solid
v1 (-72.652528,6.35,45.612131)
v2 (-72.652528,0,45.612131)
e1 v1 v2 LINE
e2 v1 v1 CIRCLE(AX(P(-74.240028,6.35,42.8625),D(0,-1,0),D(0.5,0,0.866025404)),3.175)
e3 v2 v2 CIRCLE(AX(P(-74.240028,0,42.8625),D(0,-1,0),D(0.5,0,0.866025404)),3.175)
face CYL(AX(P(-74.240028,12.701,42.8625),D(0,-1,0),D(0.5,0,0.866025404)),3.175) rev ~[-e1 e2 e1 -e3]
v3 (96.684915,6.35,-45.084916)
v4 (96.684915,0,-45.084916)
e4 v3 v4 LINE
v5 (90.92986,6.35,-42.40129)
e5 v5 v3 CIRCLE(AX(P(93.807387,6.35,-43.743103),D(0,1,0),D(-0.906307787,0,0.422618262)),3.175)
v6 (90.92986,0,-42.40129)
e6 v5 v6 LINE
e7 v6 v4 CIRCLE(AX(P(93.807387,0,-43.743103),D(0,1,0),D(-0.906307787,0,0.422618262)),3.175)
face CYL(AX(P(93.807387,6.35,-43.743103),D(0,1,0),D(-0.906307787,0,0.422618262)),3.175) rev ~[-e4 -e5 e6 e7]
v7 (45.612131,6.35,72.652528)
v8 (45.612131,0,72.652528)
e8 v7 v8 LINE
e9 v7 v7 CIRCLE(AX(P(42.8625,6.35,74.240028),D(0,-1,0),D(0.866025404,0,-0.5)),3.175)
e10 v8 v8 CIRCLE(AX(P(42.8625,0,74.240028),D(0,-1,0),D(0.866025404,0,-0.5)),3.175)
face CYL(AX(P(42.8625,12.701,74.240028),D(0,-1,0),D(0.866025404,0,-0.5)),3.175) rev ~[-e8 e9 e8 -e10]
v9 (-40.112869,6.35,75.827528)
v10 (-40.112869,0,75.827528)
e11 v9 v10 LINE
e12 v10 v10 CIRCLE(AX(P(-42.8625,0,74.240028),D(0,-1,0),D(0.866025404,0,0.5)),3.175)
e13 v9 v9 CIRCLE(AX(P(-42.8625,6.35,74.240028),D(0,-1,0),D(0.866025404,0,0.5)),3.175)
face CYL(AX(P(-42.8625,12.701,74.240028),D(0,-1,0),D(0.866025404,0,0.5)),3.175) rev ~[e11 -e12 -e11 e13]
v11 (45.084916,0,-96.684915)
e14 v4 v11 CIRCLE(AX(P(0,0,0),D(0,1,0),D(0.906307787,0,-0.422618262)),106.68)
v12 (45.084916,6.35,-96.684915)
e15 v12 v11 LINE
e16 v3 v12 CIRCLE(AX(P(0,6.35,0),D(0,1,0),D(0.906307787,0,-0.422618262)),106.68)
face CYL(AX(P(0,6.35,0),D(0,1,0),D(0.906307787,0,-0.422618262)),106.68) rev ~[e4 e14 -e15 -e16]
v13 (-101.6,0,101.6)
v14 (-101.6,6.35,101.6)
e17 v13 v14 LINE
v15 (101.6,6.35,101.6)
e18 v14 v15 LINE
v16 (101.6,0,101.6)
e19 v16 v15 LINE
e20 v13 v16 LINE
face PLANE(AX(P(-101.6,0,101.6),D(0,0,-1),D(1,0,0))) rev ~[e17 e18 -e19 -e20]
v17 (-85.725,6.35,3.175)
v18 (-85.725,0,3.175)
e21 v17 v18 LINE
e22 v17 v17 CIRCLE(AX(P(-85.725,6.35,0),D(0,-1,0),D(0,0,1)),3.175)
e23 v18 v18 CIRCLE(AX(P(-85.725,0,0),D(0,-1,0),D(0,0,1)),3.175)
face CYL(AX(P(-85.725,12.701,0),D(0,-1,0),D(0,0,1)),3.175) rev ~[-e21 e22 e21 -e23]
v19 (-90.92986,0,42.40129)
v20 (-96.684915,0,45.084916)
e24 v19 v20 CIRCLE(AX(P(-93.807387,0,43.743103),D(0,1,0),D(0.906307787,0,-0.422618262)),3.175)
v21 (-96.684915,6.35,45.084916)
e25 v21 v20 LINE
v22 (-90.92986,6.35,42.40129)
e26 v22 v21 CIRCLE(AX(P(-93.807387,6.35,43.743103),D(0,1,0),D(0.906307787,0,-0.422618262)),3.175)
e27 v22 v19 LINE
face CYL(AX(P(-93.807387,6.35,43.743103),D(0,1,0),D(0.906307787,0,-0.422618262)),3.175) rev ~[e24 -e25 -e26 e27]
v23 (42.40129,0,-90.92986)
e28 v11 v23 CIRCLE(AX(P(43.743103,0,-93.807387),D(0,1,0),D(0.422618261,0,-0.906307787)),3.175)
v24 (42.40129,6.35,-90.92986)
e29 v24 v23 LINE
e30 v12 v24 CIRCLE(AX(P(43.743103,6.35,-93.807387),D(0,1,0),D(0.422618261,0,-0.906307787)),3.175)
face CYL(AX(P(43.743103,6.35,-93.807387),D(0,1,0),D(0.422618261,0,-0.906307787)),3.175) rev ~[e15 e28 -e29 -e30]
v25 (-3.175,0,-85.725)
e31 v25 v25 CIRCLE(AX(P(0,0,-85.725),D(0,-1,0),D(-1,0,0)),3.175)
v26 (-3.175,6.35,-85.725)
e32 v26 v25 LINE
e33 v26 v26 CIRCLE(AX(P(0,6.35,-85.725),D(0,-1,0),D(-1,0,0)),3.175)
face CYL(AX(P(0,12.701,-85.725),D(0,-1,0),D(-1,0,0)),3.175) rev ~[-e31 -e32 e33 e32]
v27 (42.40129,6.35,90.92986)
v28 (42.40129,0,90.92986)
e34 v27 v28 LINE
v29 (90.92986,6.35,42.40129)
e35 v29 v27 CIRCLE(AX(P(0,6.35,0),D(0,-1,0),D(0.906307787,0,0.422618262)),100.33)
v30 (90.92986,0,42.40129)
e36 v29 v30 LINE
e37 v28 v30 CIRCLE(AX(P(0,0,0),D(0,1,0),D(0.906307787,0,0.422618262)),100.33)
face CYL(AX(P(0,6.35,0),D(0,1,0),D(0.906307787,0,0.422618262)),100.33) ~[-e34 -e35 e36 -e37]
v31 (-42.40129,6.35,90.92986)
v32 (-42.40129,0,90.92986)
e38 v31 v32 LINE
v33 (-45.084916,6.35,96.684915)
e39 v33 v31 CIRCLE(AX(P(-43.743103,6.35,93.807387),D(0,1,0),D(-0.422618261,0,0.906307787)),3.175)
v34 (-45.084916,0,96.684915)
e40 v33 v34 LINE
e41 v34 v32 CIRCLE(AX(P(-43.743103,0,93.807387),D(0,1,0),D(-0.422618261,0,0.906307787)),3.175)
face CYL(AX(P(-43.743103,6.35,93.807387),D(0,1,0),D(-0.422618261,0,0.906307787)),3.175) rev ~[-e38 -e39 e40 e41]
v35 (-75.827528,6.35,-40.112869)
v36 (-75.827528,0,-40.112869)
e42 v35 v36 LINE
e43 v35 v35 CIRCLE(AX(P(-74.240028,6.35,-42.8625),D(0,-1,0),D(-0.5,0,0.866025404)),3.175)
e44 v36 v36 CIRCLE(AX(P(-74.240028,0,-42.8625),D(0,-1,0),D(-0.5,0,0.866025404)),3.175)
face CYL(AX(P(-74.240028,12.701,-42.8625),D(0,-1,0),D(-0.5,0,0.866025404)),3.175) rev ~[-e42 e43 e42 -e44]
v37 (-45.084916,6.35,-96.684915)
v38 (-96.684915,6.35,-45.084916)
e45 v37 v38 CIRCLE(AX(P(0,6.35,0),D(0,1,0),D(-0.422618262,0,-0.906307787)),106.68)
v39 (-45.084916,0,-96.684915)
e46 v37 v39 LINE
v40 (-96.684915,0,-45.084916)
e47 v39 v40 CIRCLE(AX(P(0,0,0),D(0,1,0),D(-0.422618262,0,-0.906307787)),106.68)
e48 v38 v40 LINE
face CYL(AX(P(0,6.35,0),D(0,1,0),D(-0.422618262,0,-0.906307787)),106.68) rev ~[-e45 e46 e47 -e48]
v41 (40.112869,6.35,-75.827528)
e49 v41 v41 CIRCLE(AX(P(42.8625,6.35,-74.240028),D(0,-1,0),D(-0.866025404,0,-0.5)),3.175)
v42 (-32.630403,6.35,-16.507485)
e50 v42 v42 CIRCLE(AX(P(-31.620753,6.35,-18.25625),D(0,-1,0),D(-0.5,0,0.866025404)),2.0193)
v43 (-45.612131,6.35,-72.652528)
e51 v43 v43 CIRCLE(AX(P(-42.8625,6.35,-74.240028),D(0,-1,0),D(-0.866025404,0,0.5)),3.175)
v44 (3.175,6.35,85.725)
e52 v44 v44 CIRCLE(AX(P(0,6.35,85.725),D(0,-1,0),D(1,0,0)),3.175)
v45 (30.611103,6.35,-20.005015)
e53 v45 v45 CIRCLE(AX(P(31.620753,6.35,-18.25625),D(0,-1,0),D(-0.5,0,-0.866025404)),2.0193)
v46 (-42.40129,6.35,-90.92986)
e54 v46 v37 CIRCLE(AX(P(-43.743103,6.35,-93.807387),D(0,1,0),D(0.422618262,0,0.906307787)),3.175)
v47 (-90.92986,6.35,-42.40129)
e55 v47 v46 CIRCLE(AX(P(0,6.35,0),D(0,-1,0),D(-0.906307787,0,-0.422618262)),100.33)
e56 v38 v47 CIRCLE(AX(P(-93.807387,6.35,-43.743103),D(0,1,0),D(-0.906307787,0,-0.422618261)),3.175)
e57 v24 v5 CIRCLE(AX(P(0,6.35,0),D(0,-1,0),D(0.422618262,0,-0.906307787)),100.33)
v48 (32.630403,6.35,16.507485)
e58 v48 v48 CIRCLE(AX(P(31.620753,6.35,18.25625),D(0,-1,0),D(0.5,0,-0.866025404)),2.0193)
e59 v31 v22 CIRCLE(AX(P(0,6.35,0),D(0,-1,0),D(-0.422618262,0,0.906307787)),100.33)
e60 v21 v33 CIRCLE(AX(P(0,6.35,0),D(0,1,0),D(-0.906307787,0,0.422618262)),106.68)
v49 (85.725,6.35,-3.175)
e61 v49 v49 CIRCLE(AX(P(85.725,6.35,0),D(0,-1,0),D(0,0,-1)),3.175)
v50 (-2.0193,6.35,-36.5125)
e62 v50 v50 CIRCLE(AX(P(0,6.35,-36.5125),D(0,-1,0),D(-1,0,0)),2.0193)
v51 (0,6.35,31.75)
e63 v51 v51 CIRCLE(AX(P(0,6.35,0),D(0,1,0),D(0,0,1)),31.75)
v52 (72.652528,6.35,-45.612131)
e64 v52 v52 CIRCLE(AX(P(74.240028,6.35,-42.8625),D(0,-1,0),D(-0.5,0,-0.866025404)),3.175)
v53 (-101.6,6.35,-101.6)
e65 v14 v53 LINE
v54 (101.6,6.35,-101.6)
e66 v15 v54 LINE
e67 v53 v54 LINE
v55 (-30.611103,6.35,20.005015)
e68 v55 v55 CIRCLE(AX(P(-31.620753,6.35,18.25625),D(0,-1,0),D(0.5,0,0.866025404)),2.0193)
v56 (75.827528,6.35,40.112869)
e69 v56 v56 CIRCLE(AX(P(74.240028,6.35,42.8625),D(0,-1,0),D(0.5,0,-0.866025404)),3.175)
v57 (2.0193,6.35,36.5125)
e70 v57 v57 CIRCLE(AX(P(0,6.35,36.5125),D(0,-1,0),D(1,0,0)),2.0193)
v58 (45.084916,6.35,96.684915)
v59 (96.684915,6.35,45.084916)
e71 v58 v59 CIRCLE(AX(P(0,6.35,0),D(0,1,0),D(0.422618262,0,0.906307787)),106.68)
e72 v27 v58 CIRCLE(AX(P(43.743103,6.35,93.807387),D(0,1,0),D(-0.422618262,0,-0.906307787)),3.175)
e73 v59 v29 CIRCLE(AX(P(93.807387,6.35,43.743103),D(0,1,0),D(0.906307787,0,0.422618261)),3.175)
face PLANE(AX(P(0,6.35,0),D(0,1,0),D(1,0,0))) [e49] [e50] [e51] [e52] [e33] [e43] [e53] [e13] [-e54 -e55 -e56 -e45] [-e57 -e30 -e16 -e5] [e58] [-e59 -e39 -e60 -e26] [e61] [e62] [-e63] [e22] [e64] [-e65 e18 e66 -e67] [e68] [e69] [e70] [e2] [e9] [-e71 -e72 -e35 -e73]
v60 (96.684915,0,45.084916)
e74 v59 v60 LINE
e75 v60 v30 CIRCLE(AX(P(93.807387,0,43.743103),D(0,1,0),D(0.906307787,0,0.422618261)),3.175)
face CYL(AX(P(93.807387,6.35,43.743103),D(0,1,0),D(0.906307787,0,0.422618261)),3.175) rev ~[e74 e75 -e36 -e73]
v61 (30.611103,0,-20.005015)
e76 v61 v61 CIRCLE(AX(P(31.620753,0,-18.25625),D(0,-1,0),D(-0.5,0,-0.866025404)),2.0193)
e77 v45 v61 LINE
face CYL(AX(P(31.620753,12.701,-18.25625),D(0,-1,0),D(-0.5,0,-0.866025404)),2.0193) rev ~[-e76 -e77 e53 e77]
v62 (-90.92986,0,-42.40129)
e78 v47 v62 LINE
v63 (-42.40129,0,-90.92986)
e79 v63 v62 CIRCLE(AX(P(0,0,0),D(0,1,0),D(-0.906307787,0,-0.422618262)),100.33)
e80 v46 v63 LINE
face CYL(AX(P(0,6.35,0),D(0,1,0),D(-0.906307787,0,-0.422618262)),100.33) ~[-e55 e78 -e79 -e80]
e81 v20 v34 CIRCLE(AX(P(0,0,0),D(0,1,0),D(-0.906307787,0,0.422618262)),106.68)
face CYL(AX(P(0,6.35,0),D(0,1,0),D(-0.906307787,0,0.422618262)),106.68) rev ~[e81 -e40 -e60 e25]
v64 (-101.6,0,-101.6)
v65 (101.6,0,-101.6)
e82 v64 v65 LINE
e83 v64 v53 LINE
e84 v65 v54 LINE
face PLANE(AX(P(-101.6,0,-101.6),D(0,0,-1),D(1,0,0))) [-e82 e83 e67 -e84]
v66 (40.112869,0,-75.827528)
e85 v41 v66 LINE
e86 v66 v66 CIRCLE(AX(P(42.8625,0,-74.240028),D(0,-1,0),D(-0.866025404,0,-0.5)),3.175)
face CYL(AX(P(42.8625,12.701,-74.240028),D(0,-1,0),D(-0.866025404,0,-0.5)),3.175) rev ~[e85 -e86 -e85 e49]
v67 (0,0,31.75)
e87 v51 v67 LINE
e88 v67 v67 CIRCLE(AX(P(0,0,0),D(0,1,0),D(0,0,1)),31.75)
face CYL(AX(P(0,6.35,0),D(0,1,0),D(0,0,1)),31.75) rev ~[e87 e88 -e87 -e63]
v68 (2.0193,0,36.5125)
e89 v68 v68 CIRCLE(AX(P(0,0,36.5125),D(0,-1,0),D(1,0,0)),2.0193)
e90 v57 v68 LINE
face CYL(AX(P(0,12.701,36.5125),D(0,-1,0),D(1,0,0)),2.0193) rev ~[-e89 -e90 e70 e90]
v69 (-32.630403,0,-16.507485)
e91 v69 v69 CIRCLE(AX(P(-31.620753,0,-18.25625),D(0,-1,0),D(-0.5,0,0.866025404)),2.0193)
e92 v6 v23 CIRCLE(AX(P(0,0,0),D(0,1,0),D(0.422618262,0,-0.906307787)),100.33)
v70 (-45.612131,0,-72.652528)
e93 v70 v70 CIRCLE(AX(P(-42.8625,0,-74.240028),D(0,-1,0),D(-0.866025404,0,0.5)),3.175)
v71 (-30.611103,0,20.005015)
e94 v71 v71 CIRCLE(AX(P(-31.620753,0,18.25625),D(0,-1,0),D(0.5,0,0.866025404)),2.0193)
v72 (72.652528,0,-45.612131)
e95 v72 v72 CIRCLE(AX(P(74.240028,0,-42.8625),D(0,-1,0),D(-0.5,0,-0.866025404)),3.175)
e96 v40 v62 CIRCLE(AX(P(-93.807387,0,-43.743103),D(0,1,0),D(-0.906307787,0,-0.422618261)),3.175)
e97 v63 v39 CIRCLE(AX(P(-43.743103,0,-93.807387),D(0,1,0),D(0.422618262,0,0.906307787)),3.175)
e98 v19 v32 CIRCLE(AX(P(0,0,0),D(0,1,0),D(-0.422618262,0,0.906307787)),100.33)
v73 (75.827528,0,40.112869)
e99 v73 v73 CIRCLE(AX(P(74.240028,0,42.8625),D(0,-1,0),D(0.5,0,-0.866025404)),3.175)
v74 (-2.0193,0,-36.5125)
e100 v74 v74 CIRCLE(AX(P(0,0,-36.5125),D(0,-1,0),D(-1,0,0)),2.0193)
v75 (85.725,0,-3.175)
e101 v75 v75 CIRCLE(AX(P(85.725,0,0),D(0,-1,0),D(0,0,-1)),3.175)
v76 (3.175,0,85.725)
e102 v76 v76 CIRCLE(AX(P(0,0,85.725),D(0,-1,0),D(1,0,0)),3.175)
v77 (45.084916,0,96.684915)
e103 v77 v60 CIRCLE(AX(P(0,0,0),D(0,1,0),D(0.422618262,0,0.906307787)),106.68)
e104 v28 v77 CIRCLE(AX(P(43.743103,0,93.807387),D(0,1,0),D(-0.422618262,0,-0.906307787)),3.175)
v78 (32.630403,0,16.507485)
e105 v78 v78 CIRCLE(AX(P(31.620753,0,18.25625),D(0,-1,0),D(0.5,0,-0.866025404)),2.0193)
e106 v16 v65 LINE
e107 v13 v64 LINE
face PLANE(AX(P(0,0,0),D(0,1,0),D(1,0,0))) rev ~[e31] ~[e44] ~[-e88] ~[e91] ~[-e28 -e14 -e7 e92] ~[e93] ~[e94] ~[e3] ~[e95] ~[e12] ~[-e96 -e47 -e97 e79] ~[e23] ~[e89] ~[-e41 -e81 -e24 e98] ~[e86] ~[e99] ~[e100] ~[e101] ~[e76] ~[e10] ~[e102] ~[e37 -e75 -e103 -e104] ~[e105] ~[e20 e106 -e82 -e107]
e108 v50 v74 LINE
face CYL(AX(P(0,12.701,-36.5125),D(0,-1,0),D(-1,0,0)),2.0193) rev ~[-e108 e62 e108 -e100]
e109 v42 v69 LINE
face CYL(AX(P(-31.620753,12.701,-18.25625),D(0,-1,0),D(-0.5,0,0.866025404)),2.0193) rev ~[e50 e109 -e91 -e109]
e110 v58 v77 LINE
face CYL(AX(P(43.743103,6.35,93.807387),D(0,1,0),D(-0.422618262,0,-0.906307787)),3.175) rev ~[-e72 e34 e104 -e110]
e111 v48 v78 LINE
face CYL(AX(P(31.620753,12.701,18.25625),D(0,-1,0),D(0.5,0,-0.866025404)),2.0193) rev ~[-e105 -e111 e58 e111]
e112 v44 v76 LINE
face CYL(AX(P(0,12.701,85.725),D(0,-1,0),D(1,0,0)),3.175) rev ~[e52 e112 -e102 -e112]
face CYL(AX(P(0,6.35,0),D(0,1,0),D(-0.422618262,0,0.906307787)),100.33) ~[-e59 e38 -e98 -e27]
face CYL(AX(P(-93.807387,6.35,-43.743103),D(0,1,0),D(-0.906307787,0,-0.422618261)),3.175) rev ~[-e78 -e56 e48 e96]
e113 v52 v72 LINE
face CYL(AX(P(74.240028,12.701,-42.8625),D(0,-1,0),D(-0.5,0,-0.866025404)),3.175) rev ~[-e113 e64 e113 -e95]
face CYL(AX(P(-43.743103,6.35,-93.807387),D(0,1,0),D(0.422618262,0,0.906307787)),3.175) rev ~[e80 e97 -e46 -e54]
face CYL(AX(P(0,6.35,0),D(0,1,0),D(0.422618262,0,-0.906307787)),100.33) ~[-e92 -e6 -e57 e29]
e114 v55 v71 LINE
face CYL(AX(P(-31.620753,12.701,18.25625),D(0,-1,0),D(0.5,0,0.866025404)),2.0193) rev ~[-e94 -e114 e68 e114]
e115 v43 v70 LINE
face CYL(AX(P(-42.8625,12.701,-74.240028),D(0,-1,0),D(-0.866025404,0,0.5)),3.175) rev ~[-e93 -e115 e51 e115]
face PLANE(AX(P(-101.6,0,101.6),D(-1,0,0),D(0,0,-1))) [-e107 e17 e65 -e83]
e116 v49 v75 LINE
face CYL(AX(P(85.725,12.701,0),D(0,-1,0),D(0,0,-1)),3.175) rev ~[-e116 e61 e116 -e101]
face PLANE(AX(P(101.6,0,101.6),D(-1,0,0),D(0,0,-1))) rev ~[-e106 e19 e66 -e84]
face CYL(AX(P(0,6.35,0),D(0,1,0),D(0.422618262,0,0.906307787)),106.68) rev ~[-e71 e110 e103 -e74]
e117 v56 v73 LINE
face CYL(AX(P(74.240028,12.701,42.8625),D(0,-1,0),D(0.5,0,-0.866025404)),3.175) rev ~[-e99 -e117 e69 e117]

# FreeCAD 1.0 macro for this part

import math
import FreeCAD as App
import Part
import Sketcher

V = App.Vector
Q = App.Units.Quantity


def add_polygon(sketch, points):
    """Adds a closed chain of lines whose ends are joined by coincident constraints."""
    first, n = sketch.GeometryCount, len(points)
    for a, b in zip(points, points[1:] + points[:1]):
        sketch.addGeometry(Part.LineSegment(App.Vector(*a, 0), App.Vector(*b, 0)), False)
    for i in range(n):
        sketch.addConstraint(Sketcher.Constraint("Coincident", first + i, 2, first + (i + 1) % n, 1))

doc = App.newDocument("Part")
body = doc.addObject("PartDesign::Body", "Body")

# Sketch on XZ plane
sketch1 = body.newObject("Sketcher::SketchObject", "Sketch")
sketch1.AttachmentSupport = (doc.getObject("XZ_Plane"), [""])
sketch1.MapMode = "FlatFace"
add_polygon(sketch1, [(-102, -102), (-102, 102), (102, 102), (102, -102)])  # lines 0-3
sketch1.addConstraint([
    Sketcher.Constraint("Vertical", 0),
    Sketcher.Constraint("Horizontal", 1),
    Sketcher.Constraint("Vertical", 2),
    Sketcher.Constraint("Horizontal", 3),
    Sketcher.Constraint("Symmetric", 0, 2, 2, 2, -1, 1),
    Sketcher.Constraint("Equal", 3, 0),
    Sketcher.Constraint("DistanceX", 1, 1, 1, 2, Q("8 in")),
])
pad1 = body.newObject("PartDesign::Pad", "Pad")
pad1.Profile = sketch1
pad1.Length = Q("0.25 in")
pad1.Reversed = True

# Sketch on XZ plane
sketch2 = body.newObject("Sketcher::SketchObject", "Sketch001")
sketch2.AttachmentSupport = (doc.getObject("XZ_Plane"), [""])
sketch2.MapMode = "FlatFace"
sketch2.AttachmentOffset = App.Placement(V(0, 0, -0.25 * 25.4), App.Rotation())
sketch2.addGeometry(Part.Circle(V(0, 0, 0), V(0, 0, 1), 32), False)
sketch2.addConstraint([
    Sketcher.Constraint("Coincident", 0, 3, -1, 1),
    Sketcher.Constraint("Diameter", 0, Q("2.5 in")),
])
pocket1 = body.newObject("PartDesign::Pocket", "Pocket")
pocket1.Profile = sketch2
pocket1.Type = "UpToFirst"
pocket1.Reversed = True

# Sketch on XZ plane
sketch3 = body.newObject("Sketcher::SketchObject", "Sketch002")
sketch3.AttachmentSupport = (doc.getObject("XZ_Plane"), [""])
sketch3.MapMode = "FlatFace"
sketch3.AttachmentOffset = App.Placement(V(0, 0, -0.25 * 25.4), App.Rotation())
sketch3.addGeometry(Part.Circle(V(0, -85.7, 0), V(0, 0, 1), 3.2), False)
sketch3.addConstraint([
    Sketcher.Constraint("PointOnObject", 0, 3, -2),
    Sketcher.Constraint("Diameter", 0, Q("0.25 in")),
    Sketcher.Constraint("DistanceY", 0, 3, -1, 1, Q("3.375 in")),
])
doc.recompute()
hole = body.newObject("PartDesign::Hole", "Hole")
hole.Profile = sketch3
hole.ThreadType = "None"
hole.Diameter = Q("0.25 in")
hole.DepthType = "Dimension"
hole.Depth = 6.351
hole.DrillPoint = "Flat"
hole.Reversed = True
doc.recompute()

polarpattern = body.newObject("PartDesign::PolarPattern", "PolarPattern")
polarpattern.Originals = [hole]
polarpattern.Axis = (doc.getObject("Y_Axis"), [""])
polarpattern.Angle = 360
polarpattern.Occurrences = 12
body.Tip = polarpattern

# Sketch on XZ plane
sketch4 = body.newObject("Sketcher::SketchObject", "Sketch003")
sketch4.AttachmentSupport = (doc.getObject("XZ_Plane"), [""])
sketch4.MapMode = "FlatFace"
sketch4.AttachmentOffset = App.Placement(V(0, 0, -0.25 * 25.4), App.Rotation())
sketch4.addGeometry(Part.Circle(V(0, -36.5, 0), V(0, 0, 1), 2), False)
sketch4.addConstraint([
    Sketcher.Constraint("PointOnObject", 0, 3, -2),
    Sketcher.Constraint("Diameter", 0, Q("0.159 in")),
    Sketcher.Constraint("DistanceY", 0, 3, -1, 1, Q("1.4375 in")),
])
doc.recompute()
hole2 = body.newObject("PartDesign::Hole", "Hole001")
hole2.Profile = sketch4
hole2.ThreadType = "None"
hole2.Diameter = Q("0.159 in")
hole2.DepthType = "Dimension"
hole2.Depth = 6.351
hole2.DrillPoint = "Flat"
hole2.Reversed = True
doc.recompute()

polarpattern2 = body.newObject("PartDesign::PolarPattern", "PolarPattern001")
polarpattern2.Originals = [hole2]
polarpattern2.Axis = (doc.getObject("Y_Axis"), [""])
polarpattern2.Angle = 360
polarpattern2.Occurrences = 6
body.Tip = polarpattern2

# Sketch on XZ plane
sketch5 = body.newObject("Sketcher::SketchObject", "Sketch004")
sketch5.AttachmentSupport = (doc.getObject("XZ_Plane"), [""])
sketch5.MapMode = "FlatFace"
sketch5.AttachmentOffset = App.Placement(V(0, 0, -0.25 * 25.4), App.Rotation())
sketch5.addGeometry([
    Part.ArcOfCircle(Part.Circle(V(0, 0, 0), V(0, 0, 1), 106.7), math.radians(-65), math.radians(-25)),
    Part.ArcOfCircle(Part.Circle(V(43.7, -93.8, 0), V(0, 0, 1), 3.2), math.radians(115), math.radians(295)),
    Part.ArcOfCircle(Part.Circle(V(0, 0, 0), V(0, 0, 1), 100.3), math.radians(-65), math.radians(-25)),
    Part.ArcOfCircle(Part.Circle(V(93.8, -43.7, 0), V(0, 0, 1), 3.2), math.radians(-25), math.radians(155)),
], False)
sketch5.addConstraint([
    Sketcher.Constraint("Tangent", 0, 1, 1, 2),
    Sketcher.Constraint("Tangent", 1, 1, 2, 1),
    Sketcher.Constraint("Tangent", 2, 2, 3, 2),
    Sketcher.Constraint("Tangent", 3, 1, 0, 2),
    Sketcher.Constraint("Coincident", 0, 3, -1, 1),
    Sketcher.Constraint("Coincident", 2, 3, -1, 1),
    Sketcher.Constraint("Radius", 0, Q("4.2 in")),
    Sketcher.Constraint("Radius", 2, Q("3.95 in")),
    Sketcher.Constraint("DistanceX", 0, 1, 3, 1, Q("51.599999 mm")),
    Sketcher.Constraint("DistanceY", 0, 1, 3, 1, Q("51.599999 mm")),
])
pocket2 = body.newObject("PartDesign::Pocket", "Pocket001")
pocket2.Profile = sketch5
pocket2.Type = "UpToFirst"
pocket2.Reversed = True

# Sketch on XZ plane
sketch6 = body.newObject("Sketcher::SketchObject", "Sketch005")
sketch6.AttachmentSupport = (doc.getObject("XZ_Plane"), [""])
sketch6.MapMode = "FlatFace"
sketch6.AttachmentOffset = App.Placement(V(0, 0, -0.25 * 25.4), App.Rotation())
sketch6.addGeometry([
    Part.ArcOfCircle(Part.Circle(V(0, 0, 0), V(0, 0, 1), 106.7), math.radians(25), math.radians(65)),
    Part.ArcOfCircle(Part.Circle(V(93.8, 43.7, 0), V(0, 0, 1), 3.2), math.radians(-155), math.radians(25)),
    Part.ArcOfCircle(Part.Circle(V(0, 0, 0), V(0, 0, 1), 100.3), math.radians(25), math.radians(65)),
    Part.ArcOfCircle(Part.Circle(V(43.7, 93.8, 0), V(0, 0, 1), 3.2), math.radians(65), math.radians(245)),
], False)
sketch6.addConstraint([
    Sketcher.Constraint("Tangent", 0, 1, 1, 2),
    Sketcher.Constraint("Tangent", 1, 1, 2, 1),
    Sketcher.Constraint("Tangent", 2, 2, 3, 2),
    Sketcher.Constraint("Tangent", 3, 1, 0, 2),
    Sketcher.Constraint("Coincident", 0, 3, -1, 1),
    Sketcher.Constraint("Coincident", 2, 3, -1, 1),
    Sketcher.Constraint("Radius", 0, Q("4.2 in")),
    Sketcher.Constraint("Radius", 2, Q("3.95 in")),
    Sketcher.Constraint("DistanceX", 3, 1, 0, 1, Q("51.599999 mm")),
    Sketcher.Constraint("DistanceY", 0, 1, 3, 1, Q("51.599999 mm")),
])
pocket3 = body.newObject("PartDesign::Pocket", "Pocket002")
pocket3.Profile = sketch6
pocket3.Type = "UpToFirst"
pocket3.Reversed = True

# Sketch on XZ plane
sketch7 = body.newObject("Sketcher::SketchObject", "Sketch006")
sketch7.AttachmentSupport = (doc.getObject("XZ_Plane"), [""])
sketch7.MapMode = "FlatFace"
sketch7.AttachmentOffset = App.Placement(V(0, 0, -0.25 * 25.4), App.Rotation())
sketch7.addGeometry([
    Part.ArcOfCircle(Part.Circle(V(0, 0, 0), V(0, 0, 1), 106.7), math.radians(115), math.radians(155)),
    Part.ArcOfCircle(Part.Circle(V(-43.7, 93.8, 0), V(0, 0, 1), 3.2), math.radians(-65), math.radians(115)),
    Part.ArcOfCircle(Part.Circle(V(0, 0, 0), V(0, 0, 1), 100.3), math.radians(115), math.radians(155)),
    Part.ArcOfCircle(Part.Circle(V(-93.8, 43.7, 0), V(0, 0, 1), 3.2), math.radians(155), math.radians(335)),
], False)
sketch7.addConstraint([
    Sketcher.Constraint("Tangent", 0, 1, 1, 2),
    Sketcher.Constraint("Tangent", 1, 1, 2, 1),
    Sketcher.Constraint("Tangent", 2, 2, 3, 2),
    Sketcher.Constraint("Tangent", 3, 1, 0, 2),
    Sketcher.Constraint("Coincident", 0, 3, -1, 1),
    Sketcher.Constraint("Coincident", 2, 3, -1, 1),
    Sketcher.Constraint("Radius", 0, Q("4.2 in")),
    Sketcher.Constraint("Radius", 2, Q("3.95 in")),
    Sketcher.Constraint("DistanceX", 3, 1, 0, 1, Q("51.599999 mm")),
    Sketcher.Constraint("DistanceY", 3, 1, 0, 1, Q("51.599999 mm")),
])
pocket4 = body.newObject("PartDesign::Pocket", "Pocket003")
pocket4.Profile = sketch7
pocket4.Type = "UpToFirst"
pocket4.Reversed = True

# Sketch on XZ plane
sketch8 = body.newObject("Sketcher::SketchObject", "Sketch007")
sketch8.AttachmentSupport = (doc.getObject("XZ_Plane"), [""])
sketch8.MapMode = "FlatFace"
sketch8.AttachmentOffset = App.Placement(V(0, 0, -0.25 * 25.4), App.Rotation())
sketch8.addGeometry([
    Part.ArcOfCircle(Part.Circle(V(0, 0, 0), V(0, 0, 1), 106.7), math.radians(-155), math.radians(-115)),
    Part.ArcOfCircle(Part.Circle(V(-93.8, -43.7, 0), V(0, 0, 1), 3.2), math.radians(25), math.radians(205)),
    Part.ArcOfCircle(Part.Circle(V(0, 0, 0), V(0, 0, 1), 100.3), math.radians(-155), math.radians(-115)),
    Part.ArcOfCircle(Part.Circle(V(-43.7, -93.8, 0), V(0, 0, 1), 3.2), math.radians(-115), math.radians(65)),
], False)
sketch8.addConstraint([
    Sketcher.Constraint("Tangent", 0, 1, 1, 2),
    Sketcher.Constraint("Tangent", 1, 1, 2, 1),
    Sketcher.Constraint("Tangent", 2, 2, 3, 2),
    Sketcher.Constraint("Tangent", 3, 1, 0, 2),
    Sketcher.Constraint("Coincident", 0, 3, -1, 1),
    Sketcher.Constraint("Coincident", 2, 3, -1, 1),
    Sketcher.Constraint("Radius", 0, Q("4.2 in")),
    Sketcher.Constraint("Radius", 2, Q("3.95 in")),
    Sketcher.Constraint("DistanceX", 0, 1, 3, 1, Q("51.599999 mm")),
    Sketcher.Constraint("DistanceY", 3, 1, 0, 1, Q("51.599999 mm")),
])
pocket5 = body.newObject("PartDesign::Pocket", "Pocket004")
pocket5.Profile = sketch8
pocket5.Type = "UpToFirst"
pocket5.Reversed = True

doc.recompute()
